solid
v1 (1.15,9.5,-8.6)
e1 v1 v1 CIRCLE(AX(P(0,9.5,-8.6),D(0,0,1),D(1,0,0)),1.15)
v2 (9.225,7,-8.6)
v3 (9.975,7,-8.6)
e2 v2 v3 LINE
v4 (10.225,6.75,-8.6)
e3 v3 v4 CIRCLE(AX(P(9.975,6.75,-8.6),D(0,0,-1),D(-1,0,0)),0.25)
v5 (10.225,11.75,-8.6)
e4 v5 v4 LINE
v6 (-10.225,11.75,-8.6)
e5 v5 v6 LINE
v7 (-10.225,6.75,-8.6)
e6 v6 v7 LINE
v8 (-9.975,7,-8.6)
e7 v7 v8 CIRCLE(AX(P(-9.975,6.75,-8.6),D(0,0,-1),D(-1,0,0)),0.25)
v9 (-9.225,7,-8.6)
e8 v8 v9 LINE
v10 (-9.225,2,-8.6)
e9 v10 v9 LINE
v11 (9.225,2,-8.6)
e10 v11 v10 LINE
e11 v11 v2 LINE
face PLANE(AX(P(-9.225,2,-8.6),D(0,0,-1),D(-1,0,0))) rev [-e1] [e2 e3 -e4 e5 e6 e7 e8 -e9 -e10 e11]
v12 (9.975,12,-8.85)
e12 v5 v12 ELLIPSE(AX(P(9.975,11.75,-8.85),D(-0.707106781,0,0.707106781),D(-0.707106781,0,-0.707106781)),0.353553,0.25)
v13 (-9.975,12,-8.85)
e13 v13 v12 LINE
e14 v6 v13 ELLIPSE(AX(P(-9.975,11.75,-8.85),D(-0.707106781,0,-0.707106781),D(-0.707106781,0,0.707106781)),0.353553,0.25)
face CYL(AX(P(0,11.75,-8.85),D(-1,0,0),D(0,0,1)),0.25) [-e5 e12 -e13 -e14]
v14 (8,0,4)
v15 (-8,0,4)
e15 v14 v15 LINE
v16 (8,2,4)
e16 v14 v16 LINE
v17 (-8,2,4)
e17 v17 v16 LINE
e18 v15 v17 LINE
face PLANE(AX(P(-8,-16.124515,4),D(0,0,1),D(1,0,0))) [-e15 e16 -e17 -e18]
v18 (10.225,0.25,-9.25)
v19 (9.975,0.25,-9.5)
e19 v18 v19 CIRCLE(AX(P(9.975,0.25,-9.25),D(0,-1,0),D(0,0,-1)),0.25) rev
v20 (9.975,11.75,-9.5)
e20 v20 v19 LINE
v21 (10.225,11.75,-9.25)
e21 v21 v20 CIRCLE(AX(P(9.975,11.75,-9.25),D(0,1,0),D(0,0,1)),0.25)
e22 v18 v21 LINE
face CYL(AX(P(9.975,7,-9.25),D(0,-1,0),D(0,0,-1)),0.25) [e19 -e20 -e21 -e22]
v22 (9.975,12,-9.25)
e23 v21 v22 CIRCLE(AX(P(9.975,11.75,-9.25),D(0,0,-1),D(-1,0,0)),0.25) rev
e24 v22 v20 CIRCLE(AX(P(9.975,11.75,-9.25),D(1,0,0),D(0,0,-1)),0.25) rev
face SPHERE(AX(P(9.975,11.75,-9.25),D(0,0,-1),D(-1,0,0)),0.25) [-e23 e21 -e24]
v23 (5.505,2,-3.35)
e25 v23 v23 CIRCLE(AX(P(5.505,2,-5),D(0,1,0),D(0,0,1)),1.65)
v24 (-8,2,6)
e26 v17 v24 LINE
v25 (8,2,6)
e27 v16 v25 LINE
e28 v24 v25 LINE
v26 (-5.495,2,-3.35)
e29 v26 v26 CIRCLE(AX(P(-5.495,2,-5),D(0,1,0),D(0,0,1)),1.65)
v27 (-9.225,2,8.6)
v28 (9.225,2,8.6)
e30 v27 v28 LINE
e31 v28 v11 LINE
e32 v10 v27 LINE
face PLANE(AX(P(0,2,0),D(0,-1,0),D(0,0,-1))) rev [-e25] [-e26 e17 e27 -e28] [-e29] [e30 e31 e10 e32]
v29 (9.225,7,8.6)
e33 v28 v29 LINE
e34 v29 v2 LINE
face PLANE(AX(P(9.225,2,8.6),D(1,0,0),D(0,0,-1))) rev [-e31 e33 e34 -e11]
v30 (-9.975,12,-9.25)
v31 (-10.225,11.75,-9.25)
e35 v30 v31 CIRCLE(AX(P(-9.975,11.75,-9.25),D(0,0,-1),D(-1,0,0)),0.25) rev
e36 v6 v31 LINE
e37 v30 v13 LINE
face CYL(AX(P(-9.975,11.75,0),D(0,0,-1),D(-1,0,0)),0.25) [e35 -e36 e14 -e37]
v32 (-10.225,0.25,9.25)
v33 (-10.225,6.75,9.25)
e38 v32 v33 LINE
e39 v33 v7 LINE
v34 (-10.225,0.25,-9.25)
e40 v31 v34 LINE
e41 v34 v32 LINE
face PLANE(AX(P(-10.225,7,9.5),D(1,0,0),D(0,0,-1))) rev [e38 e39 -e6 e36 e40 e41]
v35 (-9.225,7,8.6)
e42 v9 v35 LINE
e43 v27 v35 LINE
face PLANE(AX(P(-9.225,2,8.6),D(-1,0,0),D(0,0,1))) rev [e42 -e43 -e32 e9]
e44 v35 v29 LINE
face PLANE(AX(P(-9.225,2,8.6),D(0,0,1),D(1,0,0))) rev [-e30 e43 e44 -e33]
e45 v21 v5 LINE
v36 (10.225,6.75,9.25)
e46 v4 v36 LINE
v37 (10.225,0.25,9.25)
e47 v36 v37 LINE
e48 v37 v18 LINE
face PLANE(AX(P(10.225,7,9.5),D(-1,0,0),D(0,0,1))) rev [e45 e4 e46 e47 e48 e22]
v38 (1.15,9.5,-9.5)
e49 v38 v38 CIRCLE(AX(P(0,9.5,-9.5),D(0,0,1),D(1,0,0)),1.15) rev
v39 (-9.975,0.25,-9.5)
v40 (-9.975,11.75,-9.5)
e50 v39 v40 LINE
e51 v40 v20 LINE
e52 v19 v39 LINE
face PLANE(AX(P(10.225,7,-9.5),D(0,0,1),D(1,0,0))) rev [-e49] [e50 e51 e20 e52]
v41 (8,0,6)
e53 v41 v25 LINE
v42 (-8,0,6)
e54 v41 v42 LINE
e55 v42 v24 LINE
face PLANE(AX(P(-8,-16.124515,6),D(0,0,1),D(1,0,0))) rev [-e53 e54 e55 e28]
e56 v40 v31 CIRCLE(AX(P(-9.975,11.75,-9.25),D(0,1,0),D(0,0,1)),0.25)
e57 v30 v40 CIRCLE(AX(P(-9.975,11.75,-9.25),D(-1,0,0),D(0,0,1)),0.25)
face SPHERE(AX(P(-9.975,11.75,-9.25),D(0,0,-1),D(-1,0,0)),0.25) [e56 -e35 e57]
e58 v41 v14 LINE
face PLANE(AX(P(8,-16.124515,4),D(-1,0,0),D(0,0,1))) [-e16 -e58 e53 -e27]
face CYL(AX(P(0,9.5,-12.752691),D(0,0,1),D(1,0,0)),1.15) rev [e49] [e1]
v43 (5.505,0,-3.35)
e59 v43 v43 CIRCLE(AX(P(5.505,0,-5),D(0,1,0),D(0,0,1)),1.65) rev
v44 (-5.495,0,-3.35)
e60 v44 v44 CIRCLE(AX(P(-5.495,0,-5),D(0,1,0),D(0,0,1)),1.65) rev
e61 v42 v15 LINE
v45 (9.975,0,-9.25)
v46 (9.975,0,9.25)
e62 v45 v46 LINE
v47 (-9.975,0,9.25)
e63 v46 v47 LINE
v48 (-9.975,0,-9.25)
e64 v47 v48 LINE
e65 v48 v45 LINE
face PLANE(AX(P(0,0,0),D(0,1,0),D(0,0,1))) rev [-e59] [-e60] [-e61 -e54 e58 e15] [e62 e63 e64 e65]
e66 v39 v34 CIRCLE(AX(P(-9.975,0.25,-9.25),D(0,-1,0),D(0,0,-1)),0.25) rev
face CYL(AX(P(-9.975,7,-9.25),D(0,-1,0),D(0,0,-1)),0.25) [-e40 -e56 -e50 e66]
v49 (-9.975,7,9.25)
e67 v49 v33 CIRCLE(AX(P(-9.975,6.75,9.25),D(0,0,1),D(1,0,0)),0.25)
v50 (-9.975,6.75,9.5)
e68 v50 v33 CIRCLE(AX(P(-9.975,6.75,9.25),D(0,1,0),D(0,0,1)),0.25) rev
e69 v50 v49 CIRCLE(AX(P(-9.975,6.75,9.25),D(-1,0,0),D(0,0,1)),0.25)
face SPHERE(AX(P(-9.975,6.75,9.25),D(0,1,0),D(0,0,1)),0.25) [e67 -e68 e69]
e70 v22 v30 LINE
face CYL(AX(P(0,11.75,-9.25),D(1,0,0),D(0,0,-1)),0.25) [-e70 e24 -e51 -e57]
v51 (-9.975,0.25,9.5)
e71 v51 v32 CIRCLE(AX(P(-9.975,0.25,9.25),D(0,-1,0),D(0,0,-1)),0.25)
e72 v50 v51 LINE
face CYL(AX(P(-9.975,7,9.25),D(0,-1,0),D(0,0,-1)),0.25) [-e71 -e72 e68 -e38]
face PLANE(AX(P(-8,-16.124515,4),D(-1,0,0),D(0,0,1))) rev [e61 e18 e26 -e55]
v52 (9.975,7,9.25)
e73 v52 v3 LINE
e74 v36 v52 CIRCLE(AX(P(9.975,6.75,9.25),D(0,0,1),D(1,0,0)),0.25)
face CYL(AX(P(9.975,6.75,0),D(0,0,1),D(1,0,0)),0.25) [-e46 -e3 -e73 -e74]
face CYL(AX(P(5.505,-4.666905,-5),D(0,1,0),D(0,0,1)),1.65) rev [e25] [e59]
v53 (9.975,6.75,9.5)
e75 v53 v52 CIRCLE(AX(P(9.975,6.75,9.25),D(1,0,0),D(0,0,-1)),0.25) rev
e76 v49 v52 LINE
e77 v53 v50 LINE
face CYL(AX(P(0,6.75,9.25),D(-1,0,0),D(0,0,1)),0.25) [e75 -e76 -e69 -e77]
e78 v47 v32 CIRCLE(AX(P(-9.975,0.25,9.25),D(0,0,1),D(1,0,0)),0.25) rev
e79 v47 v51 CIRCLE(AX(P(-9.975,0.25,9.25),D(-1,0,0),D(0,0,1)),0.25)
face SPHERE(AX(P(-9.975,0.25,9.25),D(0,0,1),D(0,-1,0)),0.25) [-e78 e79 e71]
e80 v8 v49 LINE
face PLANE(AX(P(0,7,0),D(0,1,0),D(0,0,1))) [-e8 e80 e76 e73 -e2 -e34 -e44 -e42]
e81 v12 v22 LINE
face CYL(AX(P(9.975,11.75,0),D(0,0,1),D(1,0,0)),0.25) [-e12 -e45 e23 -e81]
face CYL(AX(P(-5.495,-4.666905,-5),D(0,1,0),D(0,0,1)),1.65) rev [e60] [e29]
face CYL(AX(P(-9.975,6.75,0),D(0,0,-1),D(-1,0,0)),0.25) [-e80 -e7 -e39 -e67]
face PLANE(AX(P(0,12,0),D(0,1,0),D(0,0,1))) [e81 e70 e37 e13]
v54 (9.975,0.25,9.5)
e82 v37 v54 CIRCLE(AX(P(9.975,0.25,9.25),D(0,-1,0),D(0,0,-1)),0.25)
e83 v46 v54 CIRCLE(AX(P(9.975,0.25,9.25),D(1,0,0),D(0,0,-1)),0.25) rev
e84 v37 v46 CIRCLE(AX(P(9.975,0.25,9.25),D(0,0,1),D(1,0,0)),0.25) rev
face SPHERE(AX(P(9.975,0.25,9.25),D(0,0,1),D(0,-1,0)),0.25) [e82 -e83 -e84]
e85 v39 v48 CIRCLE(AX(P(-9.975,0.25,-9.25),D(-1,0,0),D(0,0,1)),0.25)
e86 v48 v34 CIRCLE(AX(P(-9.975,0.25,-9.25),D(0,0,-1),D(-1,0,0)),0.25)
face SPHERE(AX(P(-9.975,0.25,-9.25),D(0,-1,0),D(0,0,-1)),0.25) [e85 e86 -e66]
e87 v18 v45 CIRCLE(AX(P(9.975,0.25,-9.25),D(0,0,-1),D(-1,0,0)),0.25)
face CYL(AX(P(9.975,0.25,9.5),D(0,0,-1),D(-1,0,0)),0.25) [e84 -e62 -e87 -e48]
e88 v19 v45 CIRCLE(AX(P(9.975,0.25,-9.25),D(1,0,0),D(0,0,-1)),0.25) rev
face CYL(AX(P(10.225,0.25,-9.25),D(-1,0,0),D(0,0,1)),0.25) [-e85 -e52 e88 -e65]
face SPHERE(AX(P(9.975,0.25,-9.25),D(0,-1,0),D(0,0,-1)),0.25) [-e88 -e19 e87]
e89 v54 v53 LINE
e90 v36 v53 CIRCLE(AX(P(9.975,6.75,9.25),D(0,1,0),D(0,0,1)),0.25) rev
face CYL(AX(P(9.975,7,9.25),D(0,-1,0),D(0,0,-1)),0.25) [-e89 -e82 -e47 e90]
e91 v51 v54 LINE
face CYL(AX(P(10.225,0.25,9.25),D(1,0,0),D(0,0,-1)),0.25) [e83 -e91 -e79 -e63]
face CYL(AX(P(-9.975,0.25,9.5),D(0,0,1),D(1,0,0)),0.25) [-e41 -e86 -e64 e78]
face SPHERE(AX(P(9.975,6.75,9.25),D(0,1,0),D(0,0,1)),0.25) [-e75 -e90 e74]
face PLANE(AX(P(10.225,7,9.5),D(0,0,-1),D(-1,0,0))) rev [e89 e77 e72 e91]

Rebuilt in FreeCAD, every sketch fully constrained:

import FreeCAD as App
import Part
import Sketcher
Q = App.Units.Quantity


def edges_at(feature, points):
    """Names of the edges that pass closest to the given points."""
    edges = feature.Shape.Edges
    near = lambda p: min(range(len(edges)), key=lambda i: edges[i].distToShape(Part.Vertex(*p))[0])
    return sorted({f"Edge{near(p) + 1}" for p in points})

doc = App.newDocument("Part")
body = doc.addObject("PartDesign::Body", "Body")

# Sketch on XZ plane
sketch1 = body.newObject("Sketcher::SketchObject", "Sketch")
sketch1.AttachmentSupport = (doc.getObject("XZ_Plane"), [""])
sketch1.MapMode = "FlatFace"
sketch1.addGeometry([
    Part.LineSegment(App.Vector(-10, -10, 0), App.Vector(-10, 10, 0)),
    Part.LineSegment(App.Vector(-10, 10, 0), App.Vector(10, 10, 0)),
    Part.LineSegment(App.Vector(10, 10, 0), App.Vector(10, -10, 0)),
    Part.LineSegment(App.Vector(10, -10, 0), App.Vector(-10, -10, 0)),
], False)
sketch1.addConstraint([
    Sketcher.Constraint("Coincident", 0, 2, 1, 1),
    Sketcher.Constraint("Coincident", 1, 2, 2, 1),
    Sketcher.Constraint("Coincident", 2, 2, 3, 1),
    Sketcher.Constraint("Coincident", 3, 2, 0, 1),
    Sketcher.Constraint("Vertical", 0),
    Sketcher.Constraint("Horizontal", 1),
    Sketcher.Constraint("Vertical", 2),
    Sketcher.Constraint("Horizontal", 3),
    Sketcher.Constraint("Symmetric", 0, 2, 2, 2, -1, 1),
    Sketcher.Constraint("DistanceY", 0, 1, 0, 2, Q("19 mm")),
    Sketcher.Constraint("DistanceX", 1, 1, 1, 2, Q("20.45 mm")),
])
pad1 = body.newObject("PartDesign::Pad", "Pad")
pad1.Profile = sketch1
pad1.Length = 7
pad1.Reversed = True

# Sketch on XZ plane
sketch2 = body.newObject("Sketcher::SketchObject", "Sketch001")
sketch2.AttachmentSupport = (doc.getObject("XZ_Plane"), [""])
sketch2.MapMode = "FlatFace"
sketch2.AttachmentOffset = App.Placement(App.Vector(0, 0, -7), App.Rotation())
sketch2.addGeometry([
    Part.LineSegment(App.Vector(-9, -9, 0), App.Vector(-9, 9, 0)),
    Part.LineSegment(App.Vector(-9, 9, 0), App.Vector(9, 9, 0)),
    Part.LineSegment(App.Vector(9, 9, 0), App.Vector(9, -9, 0)),
    Part.LineSegment(App.Vector(9, -9, 0), App.Vector(-9, -9, 0)),
], False)
sketch2.addConstraint([
    Sketcher.Constraint("Coincident", 0, 2, 1, 1),
    Sketcher.Constraint("Coincident", 1, 2, 2, 1),
    Sketcher.Constraint("Coincident", 2, 2, 3, 1),
    Sketcher.Constraint("Coincident", 3, 2, 0, 1),
    Sketcher.Constraint("Vertical", 0),
    Sketcher.Constraint("Horizontal", 1),
    Sketcher.Constraint("Vertical", 2),
    Sketcher.Constraint("Horizontal", 3),
    Sketcher.Constraint("Symmetric", 0, 2, 2, 2, -1, 1),
    Sketcher.Constraint("DistanceY", 0, 1, 0, 2, Q("17.2 mm")),
    Sketcher.Constraint("DistanceX", 1, 1, 1, 2, Q("18.45 mm")),
])
pocket1 = body.newObject("PartDesign::Pocket", "Pocket")
pocket1.Profile = sketch2
pocket1.Length = 5
pocket1.Reversed = True

# Sketch on XZ plane
sketch3 = body.newObject("Sketcher::SketchObject", "Sketch002")
sketch3.AttachmentSupport = (doc.getObject("XZ_Plane"), [""])
sketch3.MapMode = "FlatFace"
sketch3.AttachmentOffset = App.Placement(App.Vector(0, 0, -2), App.Rotation())
sketch3.addGeometry([
    Part.Circle(App.Vector(-5.5, -5, 0), App.Vector(0, 0, 1), 1.6),
    Part.Circle(App.Vector(5.5, -5, 0), App.Vector(0, 0, 1), 1.6),
], False)
sketch3.addConstraint([
    Sketcher.Constraint("Equal", 0, 1),
    Sketcher.Constraint("Horizontal", 0, 3, 1, 3),
    Sketcher.Constraint("Diameter", 0, Q("3.3 mm")),
    Sketcher.Constraint("DistanceY", 0, 3, -1, 1, Q("5 mm")),
    Sketcher.Constraint("DistanceX", 0, 3, 1, 3, Q("11 mm")),
    Sketcher.Constraint("DistanceX", 0, 3, -1, 1, Q("5.495 mm")),
])
pocket2 = body.newObject("PartDesign::Pocket", "Pocket001")
pocket2.Profile = sketch3
pocket2.Length = 2
pocket2.Reversed = True

# Sketch on XZ plane
sketch4 = body.newObject("Sketcher::SketchObject", "Sketch003")
sketch4.AttachmentSupport = (doc.getObject("XZ_Plane"), [""])
sketch4.MapMode = "FlatFace"
sketch4.AttachmentOffset = App.Placement(App.Vector(0, 0, -2), App.Rotation())
sketch4.addGeometry([
    Part.LineSegment(App.Vector(-8, 4, 0), App.Vector(-8, 6, 0)),
    Part.LineSegment(App.Vector(-8, 6, 0), App.Vector(8, 6, 0)),
    Part.LineSegment(App.Vector(8, 6, 0), App.Vector(8, 4, 0)),
    Part.LineSegment(App.Vector(8, 4, 0), App.Vector(-8, 4, 0)),
], False)
sketch4.addConstraint([
    Sketcher.Constraint("Coincident", 0, 2, 1, 1),
    Sketcher.Constraint("Coincident", 1, 2, 2, 1),
    Sketcher.Constraint("Coincident", 2, 2, 3, 1),
    Sketcher.Constraint("Coincident", 3, 2, 0, 1),
    Sketcher.Constraint("Vertical", 0),
    Sketcher.Constraint("Horizontal", 1),
    Sketcher.Constraint("Vertical", 2),
    Sketcher.Constraint("Horizontal", 3),
    Sketcher.Constraint("DistanceX", 1, 1, 1, 2, Q("16 mm")),
    Sketcher.Constraint("DistanceY", 0, 1, 0, 2, Q("2 mm")),
    Sketcher.Constraint("DistanceX", 0, 2, -1, 1, Q("8 mm")),
    Sketcher.Constraint("DistanceY", -1, 1, 0, 2, Q("6 mm")),
])
pocket3 = body.newObject("PartDesign::Pocket", "Pocket002")
pocket3.Profile = sketch4
pocket3.Length = 2
pocket3.Reversed = True

# Sketch on XZ plane
sketch5 = body.newObject("Sketcher::SketchObject", "Sketch004")
sketch5.AttachmentSupport = (doc.getObject("XZ_Plane"), [""])
sketch5.MapMode = "FlatFace"
sketch5.AttachmentOffset = App.Placement(App.Vector(0, 0, -7), App.Rotation())
sketch5.addGeometry([
    Part.LineSegment(App.Vector(-10.2, -9.5, 0), App.Vector(-10.2, -8.6, 0)),
    Part.LineSegment(App.Vector(-10.2, -8.6, 0), App.Vector(10.2, -8.6, 0)),
    Part.LineSegment(App.Vector(10.2, -8.6, 0), App.Vector(10.2, -9.5, 0)),
    Part.LineSegment(App.Vector(10.2, -9.5, 0), App.Vector(-10.2, -9.5, 0)),
], False)
sketch5.addConstraint([
    Sketcher.Constraint("Coincident", 0, 2, 1, 1),
    Sketcher.Constraint("Coincident", 1, 2, 2, 1),
    Sketcher.Constraint("Coincident", 2, 2, 3, 1),
    Sketcher.Constraint("Coincident", 3, 2, 0, 1),
    Sketcher.Constraint("Vertical", 0),
    Sketcher.Constraint("Horizontal", 1),
    Sketcher.Constraint("Vertical", 2),
    Sketcher.Constraint("Horizontal", 3),
    Sketcher.Constraint("DistanceY", 0, 1, 0, 2, Q("0.9 mm")),
    Sketcher.Constraint("DistanceX", 1, 1, 1, 2, Q("20.45 mm")),
    Sketcher.Constraint("DistanceY", 0, 2, -1, 1, Q("8.6 mm")),
    Sketcher.Constraint("DistanceX", 0, 2, -1, 1, Q("10.225 mm")),
])
pad2 = body.newObject("PartDesign::Pad", "Pad001")
pad2.Profile = sketch5
pad2.Length = 5
pad2.Reversed = True

# Sketch on XY plane
sketch6 = body.newObject("Sketcher::SketchObject", "Sketch005")
sketch6.AttachmentSupport = (doc.getObject("XY_Plane"), [""])
sketch6.MapMode = "FlatFace"
sketch6.AttachmentOffset = App.Placement(App.Vector(0, 0, -8.6), App.Rotation())
sketch6.addGeometry(Part.Circle(App.Vector(0, 9.5, 0), App.Vector(0, 0, 1), 1.1), False)
sketch6.addConstraint([
    Sketcher.Constraint("PointOnObject", 0, 3, -2),
    Sketcher.Constraint("Diameter", 0, Q("2.3 mm")),
    Sketcher.Constraint("DistanceY", -1, 1, 0, 3, Q("9.5 mm")),
])
pocket4 = body.newObject("PartDesign::Pocket", "Pocket003")
pocket4.Profile = sketch6
pocket4.Length = 0.9
doc.recompute()

fillet = body.newObject("PartDesign::Fillet", "Fillet")
fillet.Base = (pocket4, edges_at(pocket4, [
    (10.225, 7, 0.45),
    (0, 0, -9.5),
    (-10.225, 7, 0.45),
    (10.225, 0, 0),
    (-10.225, 12, -9.05),
    (0, 12, -8.6),
    (10.225, 12, -9.05),
    (0, 0, 9.5),
    (0, 12, -9.5),
    (-10.225, 0, 0),
    (-10.225, 6, -9.5),
    (10.225, 6, -9.5),
    (10.225, 3.5, 9.5),
    (-10.225, 3.5, 9.5),
    (0, 7, 9.5),
]))
fillet.Radius = 0.25

doc.recompute()
